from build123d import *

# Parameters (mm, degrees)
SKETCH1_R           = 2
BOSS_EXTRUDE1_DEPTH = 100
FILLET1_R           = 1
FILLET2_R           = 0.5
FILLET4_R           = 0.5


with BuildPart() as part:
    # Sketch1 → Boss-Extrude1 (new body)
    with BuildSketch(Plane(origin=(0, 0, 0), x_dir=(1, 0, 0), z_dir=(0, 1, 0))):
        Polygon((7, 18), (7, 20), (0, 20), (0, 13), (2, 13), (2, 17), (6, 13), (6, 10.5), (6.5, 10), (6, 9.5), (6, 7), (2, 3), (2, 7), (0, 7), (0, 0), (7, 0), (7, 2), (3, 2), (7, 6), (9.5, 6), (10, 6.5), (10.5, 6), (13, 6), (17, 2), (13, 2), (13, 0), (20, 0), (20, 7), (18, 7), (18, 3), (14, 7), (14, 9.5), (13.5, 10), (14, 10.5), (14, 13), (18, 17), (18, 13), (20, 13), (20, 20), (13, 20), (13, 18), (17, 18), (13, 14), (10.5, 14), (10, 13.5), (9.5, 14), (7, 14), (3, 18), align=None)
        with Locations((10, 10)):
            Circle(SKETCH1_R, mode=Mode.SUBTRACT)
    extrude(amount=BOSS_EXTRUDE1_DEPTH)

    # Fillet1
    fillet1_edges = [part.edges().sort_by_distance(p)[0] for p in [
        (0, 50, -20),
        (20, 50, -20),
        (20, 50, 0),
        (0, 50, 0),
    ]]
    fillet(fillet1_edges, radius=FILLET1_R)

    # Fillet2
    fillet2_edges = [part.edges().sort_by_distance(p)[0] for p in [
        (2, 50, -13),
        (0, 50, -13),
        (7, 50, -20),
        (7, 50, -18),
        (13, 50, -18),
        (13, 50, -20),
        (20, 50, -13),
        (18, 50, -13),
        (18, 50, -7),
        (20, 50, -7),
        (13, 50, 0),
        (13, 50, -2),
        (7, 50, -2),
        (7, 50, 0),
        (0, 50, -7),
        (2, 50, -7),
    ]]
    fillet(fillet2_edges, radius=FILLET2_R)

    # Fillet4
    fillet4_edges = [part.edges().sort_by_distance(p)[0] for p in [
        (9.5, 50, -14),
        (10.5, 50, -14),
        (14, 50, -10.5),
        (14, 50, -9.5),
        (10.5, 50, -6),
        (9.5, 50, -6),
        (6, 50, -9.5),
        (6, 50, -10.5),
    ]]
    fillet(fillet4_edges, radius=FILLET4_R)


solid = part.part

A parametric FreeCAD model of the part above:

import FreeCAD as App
import Part
import Sketcher
Q = App.Units.Quantity


def edges_at(feature, points):
    """Names of the edges that pass closest to the given points."""
    edges = feature.Shape.Edges
    near = lambda p: min(range(len(edges)), key=lambda i: edges[i].distToShape(Part.Vertex(*p))[0])
    return sorted({f"Edge{near(p) + 1}" for p in points})


def add_polygon(sketch, points):
    """Adds a closed chain of lines whose ends are joined by coincident constraints."""
    first, n = sketch.GeometryCount, len(points)
    for a, b in zip(points, points[1:] + points[:1]):
        sketch.addGeometry(Part.LineSegment(App.Vector(*a, 0), App.Vector(*b, 0)), False)
    for i in range(n):
        sketch.addConstraint(Sketcher.Constraint("Coincident", first + i, 2, first + (i + 1) % n, 1))

doc = App.newDocument("Part")
params = doc.addObject("Spreadsheet::Sheet", "Params")
for row, (alias, value) in enumerate([
    ("sketch1_diameter", "4 mm"),
    ("sketch1_width", "7 mm"),
    ("sketch1_width2", "2 mm"),
    ("sketch1_width3", "4 mm"),
    ("sketch1_width4", "2.5 mm"),
    ("pad1_length", "100 mm"),
    ("fillet_radius", "1 mm"),
    ("fillet2_radius", "0.5 mm"),
    ("fillet3_radius", "0.5 mm"),
], start=1):
    params.set(f"A{row}", alias)
    params.set(f"B{row}", "=" + value)
    params.setAlias(f"B{row}", alias)

body = doc.addObject("PartDesign::Body", "Body")

# Sketch on XZ plane
sketch1 = body.newObject("Sketcher::SketchObject", "Sketch")
sketch1.AttachmentSupport = (doc.getObject("XZ_Plane"), [""])
sketch1.MapMode = "FlatFace"
add_polygon(sketch1, [(7, -18), (7, -20), (0, -20), (0, -13), (2, -13), (2, -17), (6, -13), (6, -10.5), (6.5, -10), (6, -9.5), (6, -7), (2, -3), (2, -7), (0, -7), (0, 0), (7, 0), (7, -2), (3, -2), (7, -6), (9.5, -6), (10, -6.5), (10.5, -6), (13, -6), (17, -2), (13, -2), (13, 0), (20, 0), (20, -7), (18, -7), (18, -3), (14, -7), (14, -9.5), (13.5, -10), (14, -10.5), (14, -13), (18, -17), (18, -13), (20, -13), (20, -20), (13, -20), (13, -18), (17, -18), (13, -14), (10.5, -14), (10, -13.5), (9.5, -14), (7, -14), (3, -18)])  # lines 0-47
sketch1.addGeometry(Part.Circle(App.Vector(10, -10, 0), App.Vector(0, 0, 1), 2), False)  # 48
sketch1.addConstraint(Sketcher.Constraint("Vertical", 0))
sketch1.addConstraint(Sketcher.Constraint("Horizontal", 1))
sketch1.addConstraint(Sketcher.Constraint("Vertical", 2))
sketch1.addConstraint(Sketcher.Constraint("Horizontal", 3))
sketch1.addConstraint(Sketcher.Constraint("Vertical", 4))
sketch1.addConstraint(Sketcher.Constraint("Vertical", 6))
sketch1.addConstraint(Sketcher.Constraint("Vertical", 9))
sketch1.addConstraint(Sketcher.Constraint("Vertical", 11))
sketch1.addConstraint(Sketcher.Constraint("Horizontal", 12))
sketch1.addConstraint(Sketcher.Constraint("Vertical", 13))
sketch1.addConstraint(Sketcher.Constraint("Horizontal", 14))
sketch1.addConstraint(Sketcher.Constraint("Vertical", 15))
sketch1.addConstraint(Sketcher.Constraint("Horizontal", 16))
sketch1.addConstraint(Sketcher.Constraint("Horizontal", 18))
sketch1.addConstraint(Sketcher.Constraint("Horizontal", 21))
sketch1.addConstraint(Sketcher.Constraint("Horizontal", 23))
sketch1.addConstraint(Sketcher.Constraint("Vertical", 24))
sketch1.addConstraint(Sketcher.Constraint("Horizontal", 25))
sketch1.addConstraint(Sketcher.Constraint("Vertical", 26))
sketch1.addConstraint(Sketcher.Constraint("Horizontal", 27))
sketch1.addConstraint(Sketcher.Constraint("Vertical", 28))
sketch1.addConstraint(Sketcher.Constraint("Vertical", 30))
sketch1.addConstraint(Sketcher.Constraint("Vertical", 33))
sketch1.addConstraint(Sketcher.Constraint("Vertical", 35))
sketch1.addConstraint(Sketcher.Constraint("Horizontal", 36))
sketch1.addConstraint(Sketcher.Constraint("Vertical", 37))
sketch1.addConstraint(Sketcher.Constraint("Horizontal", 38))
sketch1.addConstraint(Sketcher.Constraint("Vertical", 39))
sketch1.addConstraint(Sketcher.Constraint("Horizontal", 40))
sketch1.addConstraint(Sketcher.Constraint("Horizontal", 42))
sketch1.addConstraint(Sketcher.Constraint("Horizontal", 45))
sketch1.addConstraint(Sketcher.Constraint("Horizontal", 47))
sketch1.addConstraint(Sketcher.Constraint("Coincident", 13, 2, -1, 1))
sketch1.addConstraint(Sketcher.Constraint("PointOnObject", 1, 2, -2))
sketch1.addConstraint(Sketcher.Constraint("PointOnObject", 24, 2, -1))
sketch1.addConstraint(Sketcher.Constraint("Parallel", 5, 7))
sketch1.addConstraint(Sketcher.Constraint("Perpendicular", 7, 8))
sketch1.addConstraint(Sketcher.Constraint("Parallel", 8, 10))
sketch1.addConstraint(Sketcher.Constraint("Parallel", 10, 17))
sketch1.addConstraint(Sketcher.Constraint("Parallel", 17, 19))
sketch1.addConstraint(Sketcher.Constraint("Perpendicular", 19, 20))
sketch1.addConstraint(Sketcher.Constraint("Parallel", 20, 22))
sketch1.addConstraint(Sketcher.Constraint("Parallel", 22, 29))
sketch1.addConstraint(Sketcher.Constraint("Parallel", 29, 31))
sketch1.addConstraint(Sketcher.Constraint("Perpendicular", 31, 32))
sketch1.addConstraint(Sketcher.Constraint("Parallel", 32, 34))
sketch1.addConstraint(Sketcher.Constraint("Parallel", 34, 41))
sketch1.addConstraint(Sketcher.Constraint("Parallel", 41, 43))
sketch1.addConstraint(Sketcher.Constraint("Perpendicular", 43, 44))
sketch1.addConstraint(Sketcher.Constraint("Parallel", 44, 46))
sketch1.addConstraint(Sketcher.Constraint("Horizontal", 3, 2, 5, 2))
sketch1.addConstraint(Sketcher.Constraint("Horizontal", 48, 3, 7, 2))
sketch1.addConstraint(Sketcher.Constraint("Horizontal", 9, 2, 11, 2))
sketch1.addConstraint(Sketcher.Constraint("Horizontal", 18, 2, 20, 2))
sketch1.addConstraint(Sketcher.Constraint("Horizontal", 16, 2, 22, 2))
sketch1.addConstraint(Sketcher.Constraint("Horizontal", 12, 2, 26, 2))
sketch1.addConstraint(Sketcher.Constraint("Horizontal", 10, 2, 28, 2))
sketch1.addConstraint(Sketcher.Constraint("Horizontal", 27, 2, 29, 2))
sketch1.addConstraint(Sketcher.Constraint("Horizontal", 8, 2, 30, 2))
sketch1.addConstraint(Sketcher.Constraint("Horizontal", 7, 2, 31, 2))
sketch1.addConstraint(Sketcher.Constraint("Horizontal", 6, 2, 32, 2))
sketch1.addConstraint(Sketcher.Constraint("Horizontal", 5, 2, 33, 2))
sketch1.addConstraint(Sketcher.Constraint("Horizontal", 4, 2, 34, 2))
sketch1.addConstraint(Sketcher.Constraint("Horizontal", 33, 2, 35, 2))
sketch1.addConstraint(Sketcher.Constraint("Horizontal", 1, 2, 37, 2))
sketch1.addConstraint(Sketcher.Constraint("Horizontal", 42, 2, 44, 2))
sketch1.addConstraint(Sketcher.Constraint("Horizontal", 40, 2, 46, 2))
sketch1.addConstraint(Sketcher.Constraint("Vertical", 6, 2, 8, 2))
sketch1.addConstraint(Sketcher.Constraint("Vertical", 4, 2, 10, 2))
sketch1.addConstraint(Sketcher.Constraint("Vertical", 0, 2, 14, 2))
sketch1.addConstraint(Sketcher.Constraint("Vertical", 15, 2, 17, 2))
sketch1.addConstraint(Sketcher.Constraint("Vertical", 48, 3, 19, 2))
sketch1.addConstraint(Sketcher.Constraint("Vertical", 21, 2, 23, 2))
sketch1.addConstraint(Sketcher.Constraint("Vertical", 30, 2, 32, 2))
sketch1.addConstraint(Sketcher.Constraint("Vertical", 26, 2, 36, 2))
sketch1.addConstraint(Sketcher.Constraint("Vertical", 24, 2, 38, 2))
sketch1.addConstraint(Sketcher.Constraint("Vertical", 22, 2, 40, 2))
sketch1.addConstraint(Sketcher.Constraint("Vertical", 39, 2, 41, 2))
sketch1.addConstraint(Sketcher.Constraint("Vertical", 20, 2, 42, 2))
sketch1.addConstraint(Sketcher.Constraint("Vertical", 19, 2, 43, 2))
sketch1.addConstraint(Sketcher.Constraint("Vertical", 17, 2, 45, 2))
sketch1.addConstraint(Sketcher.Constraint("Equal", 18, 21))
sketch1.addConstraint(Sketcher.Constraint("Equal", 14, 25))
sketch1.addConstraint(Sketcher.Constraint("Equal", 12, 27))
sketch1.addConstraint(Sketcher.Constraint("Equal", 36, 0))
sketch1.addConstraint(Sketcher.Constraint("Equal", 38, 2))
sketch1.addConstraint(Sketcher.Constraint("Equal", 47, 4))
sketch1.addConstraint(Sketcher.Constraint("Equal", 45, 6))
sketch1.addConstraint(Sketcher.Constraint("Equal", 6, 9))
sketch1.addConstraint(Sketcher.Constraint("Equal", 2, 13))
sketch1.addConstraint(Sketcher.Constraint("Equal", 0, 15))
sketch1.addConstraint(Sketcher.Constraint("Equal", 8, 19))
sketch1.addConstraint(Sketcher.Constraint("Diameter", 48, Q("4 mm")))
sketch1.addConstraint(Sketcher.Constraint("DistanceX", 1, 2, 1, 1, Q("7 mm")))
sketch1.addConstraint(Sketcher.Constraint("DistanceX", 3, 1, 3, 2, Q("2 mm")))
sketch1.addConstraint(Sketcher.Constraint("DistanceX", 16, 2, 16, 1, Q("4 mm")))
sketch1.addConstraint(Sketcher.Constraint("DistanceX", 18, 1, 18, 2, Q("2.5 mm")))
sketch1.addConstraint(Sketcher.Constraint("DistanceX", -1, 1, 48, 3, Q("10 mm")))
sketch1.setExpression("Constraints[140]", "Params.sketch1_diameter")
sketch1.setExpression("Constraints[141]", "Params.sketch1_width")
sketch1.setExpression("Constraints[142]", "Params.sketch1_width2")
sketch1.setExpression("Constraints[143]", "Params.sketch1_width3")
sketch1.setExpression("Constraints[144]", "Params.sketch1_width4")
pad1 = body.newObject("PartDesign::Pad", "Pad")
pad1.Profile = sketch1
pad1.setExpression("Length", "Params.pad1_length")
pad1.Reversed = True
doc.recompute()

fillet = body.newObject("PartDesign::Fillet", "Fillet")
fillet.Base = (pad1, edges_at(pad1, [
    (0, 50, -20),
    (20, 50, -20),
    (20, 50, 0),
    (0, 50, 0),
]))
fillet.setExpression("Radius", "Params.fillet_radius")
doc.recompute()

fillet2 = body.newObject("PartDesign::Fillet", "Fillet001")
fillet2.Base = (fillet, edges_at(fillet, [
    (2, 50, -13),
    (0, 50, -13),
    (7, 50, -20),
    (7, 50, -18),
    (13, 50, -18),
    (13, 50, -20),
    (20, 50, -13),
    (18, 50, -13),
    (18, 50, -7),
    (20, 50, -7),
    (13, 50, 0),
    (13, 50, -2),
    (7, 50, -2),
    (7, 50, 0),
    (0, 50, -7),
    (2, 50, -7),
]))
fillet2.setExpression("Radius", "Params.fillet2_radius")
doc.recompute()

fillet3 = body.newObject("PartDesign::Fillet", "Fillet002")
fillet3.Base = (fillet2, edges_at(fillet2, [
    (9.5, 50, -14),
    (10.5, 50, -14),
    (14, 50, -10.5),
    (14, 50, -9.5),
    (10.5, 50, -6),
    (9.5, 50, -6),
    (6, 50, -9.5),
    (6, 50, -10.5),
]))
fillet3.setExpression("Radius", "Params.fillet3_radius")

doc.recompute()
